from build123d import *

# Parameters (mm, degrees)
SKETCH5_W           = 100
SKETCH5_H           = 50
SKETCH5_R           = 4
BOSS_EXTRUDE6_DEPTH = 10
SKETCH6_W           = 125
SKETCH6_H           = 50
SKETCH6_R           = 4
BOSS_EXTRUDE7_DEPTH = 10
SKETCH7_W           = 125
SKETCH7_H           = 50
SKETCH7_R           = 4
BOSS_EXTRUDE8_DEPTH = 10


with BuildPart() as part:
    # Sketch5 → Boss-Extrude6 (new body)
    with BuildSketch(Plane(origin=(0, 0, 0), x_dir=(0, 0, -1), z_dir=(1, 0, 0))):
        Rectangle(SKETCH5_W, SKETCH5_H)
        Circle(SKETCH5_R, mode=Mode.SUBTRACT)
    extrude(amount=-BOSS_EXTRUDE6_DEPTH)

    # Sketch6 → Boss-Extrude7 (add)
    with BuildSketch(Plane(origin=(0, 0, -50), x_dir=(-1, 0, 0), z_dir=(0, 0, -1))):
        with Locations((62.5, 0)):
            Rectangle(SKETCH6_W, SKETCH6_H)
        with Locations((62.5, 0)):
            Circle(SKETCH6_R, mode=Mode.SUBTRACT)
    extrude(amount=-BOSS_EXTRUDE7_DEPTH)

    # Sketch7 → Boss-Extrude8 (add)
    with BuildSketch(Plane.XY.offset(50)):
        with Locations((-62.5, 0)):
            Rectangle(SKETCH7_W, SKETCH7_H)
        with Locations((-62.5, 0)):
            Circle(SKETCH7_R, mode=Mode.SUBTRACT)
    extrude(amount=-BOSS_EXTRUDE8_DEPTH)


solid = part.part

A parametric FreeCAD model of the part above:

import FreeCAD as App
import Part
import Sketcher
Q = App.Units.Quantity


def add_polygon(sketch, points):
    """Adds a closed chain of lines whose ends are joined by coincident constraints."""
    first, n = sketch.GeometryCount, len(points)
    for a, b in zip(points, points[1:] + points[:1]):
        sketch.addGeometry(Part.LineSegment(App.Vector(*a, 0), App.Vector(*b, 0)), False)
    for i in range(n):
        sketch.addConstraint(Sketcher.Constraint("Coincident", first + i, 2, first + (i + 1) % n, 1))

doc = App.newDocument("Part")
body = doc.addObject("PartDesign::Body", "Body")

# Sketch on YZ plane
sketch1 = body.newObject("Sketcher::SketchObject", "Sketch")
sketch1.AttachmentSupport = (doc.getObject("YZ_Plane"), [""])
sketch1.MapMode = "FlatFace"
add_polygon(sketch1, [(25, 50), (-25, 50), (-25, -50), (25, -50)])  # lines 0-3
sketch1.addGeometry(Part.Circle(App.Vector(0, 0, 0), App.Vector(0, 0, 1), 4), False)  # 4
sketch1.addConstraint(Sketcher.Constraint("Horizontal", 0))
sketch1.addConstraint(Sketcher.Constraint("Vertical", 1))
sketch1.addConstraint(Sketcher.Constraint("Horizontal", 2))
sketch1.addConstraint(Sketcher.Constraint("Vertical", 3))
sketch1.addConstraint(Sketcher.Constraint("Coincident", 4, 3, -1, 1))
sketch1.addConstraint(Sketcher.Constraint("Symmetric", 0, 2, 2, 2, -1, 1))
sketch1.addConstraint(Sketcher.Constraint("Diameter", 4, Q("8 mm")))
sketch1.addConstraint(Sketcher.Constraint("DistanceX", 0, 2, 0, 1, Q("50 mm")))
sketch1.addConstraint(Sketcher.Constraint("DistanceY", 1, 2, 1, 1, Q("100 mm")))
pad1 = body.newObject("PartDesign::Pad", "Pad")
pad1.Profile = sketch1
pad1.Length = 10
pad1.Reversed = True

# Sketch on XY plane
sketch2 = body.newObject("Sketcher::SketchObject", "Sketch001")
sketch2.AttachmentSupport = (doc.getObject("XY_Plane"), [""])
sketch2.MapMode = "FlatFace"
sketch2.AttachmentOffset = App.Placement(App.Vector(0, 0, -50), App.Rotation())
add_polygon(sketch2, [(0, 25), (0, -25), (-125, -25), (-125, 25)])  # lines 0-3
sketch2.addGeometry(Part.Circle(App.Vector(-62.5, 0, 0), App.Vector(0, 0, 1), 4), False)  # 4
sketch2.addConstraint(Sketcher.Constraint("Vertical", 0))
sketch2.addConstraint(Sketcher.Constraint("Horizontal", 1))
sketch2.addConstraint(Sketcher.Constraint("Vertical", 2))
sketch2.addConstraint(Sketcher.Constraint("Horizontal", 3))
sketch2.addConstraint(Sketcher.Constraint("Symmetric", 0, 2, 3, 2, -1, 1))
sketch2.addConstraint(Sketcher.Constraint("PointOnObject", 4, 3, -1))
sketch2.addConstraint(Sketcher.Constraint("Diameter", 4, Q("8 mm")))
sketch2.addConstraint(Sketcher.Constraint("DistanceX", 1, 2, 1, 1, Q("125 mm")))
sketch2.addConstraint(Sketcher.Constraint("DistanceY", 0, 2, 0, 1, Q("50 mm")))
sketch2.addConstraint(Sketcher.Constraint("DistanceX", 4, 3, -1, 1, Q("62.5 mm")))
pad2 = body.newObject("PartDesign::Pad", "Pad001")
pad2.Profile = sketch2
pad2.Length = 10

# Sketch on XY plane
sketch3 = body.newObject("Sketcher::SketchObject", "Sketch002")
sketch3.AttachmentSupport = (doc.getObject("XY_Plane"), [""])
sketch3.MapMode = "FlatFace"
sketch3.AttachmentOffset = App.Placement(App.Vector(0, 0, 50), App.Rotation())
add_polygon(sketch3, [(-125, 25), (-125, -25), (0, -25), (0, 25)])  # lines 0-3
sketch3.addGeometry(Part.Circle(App.Vector(-62.5, 0, 0), App.Vector(0, 0, 1), 4), False)  # 4
sketch3.addConstraint(Sketcher.Constraint("Vertical", 0))
sketch3.addConstraint(Sketcher.Constraint("Horizontal", 1))
sketch3.addConstraint(Sketcher.Constraint("Vertical", 2))
sketch3.addConstraint(Sketcher.Constraint("Horizontal", 3))
sketch3.addConstraint(Sketcher.Constraint("Symmetric", 1, 2, 2, 2, -1, 1))
sketch3.addConstraint(Sketcher.Constraint("PointOnObject", 4, 3, -1))
sketch3.addConstraint(Sketcher.Constraint("Diameter", 4, Q("8 mm")))
sketch3.addConstraint(Sketcher.Constraint("DistanceX", 1, 1, 1, 2, Q("125 mm")))
sketch3.addConstraint(Sketcher.Constraint("DistanceY", 0, 2, 0, 1, Q("50 mm")))
sketch3.addConstraint(Sketcher.Constraint("DistanceX", 4, 3, -1, 1, Q("62.5 mm")))
pad3 = body.newObject("PartDesign::Pad", "Pad002")
pad3.Profile = sketch3
pad3.Length = 10
pad3.Reversed = True

doc.recompute()
